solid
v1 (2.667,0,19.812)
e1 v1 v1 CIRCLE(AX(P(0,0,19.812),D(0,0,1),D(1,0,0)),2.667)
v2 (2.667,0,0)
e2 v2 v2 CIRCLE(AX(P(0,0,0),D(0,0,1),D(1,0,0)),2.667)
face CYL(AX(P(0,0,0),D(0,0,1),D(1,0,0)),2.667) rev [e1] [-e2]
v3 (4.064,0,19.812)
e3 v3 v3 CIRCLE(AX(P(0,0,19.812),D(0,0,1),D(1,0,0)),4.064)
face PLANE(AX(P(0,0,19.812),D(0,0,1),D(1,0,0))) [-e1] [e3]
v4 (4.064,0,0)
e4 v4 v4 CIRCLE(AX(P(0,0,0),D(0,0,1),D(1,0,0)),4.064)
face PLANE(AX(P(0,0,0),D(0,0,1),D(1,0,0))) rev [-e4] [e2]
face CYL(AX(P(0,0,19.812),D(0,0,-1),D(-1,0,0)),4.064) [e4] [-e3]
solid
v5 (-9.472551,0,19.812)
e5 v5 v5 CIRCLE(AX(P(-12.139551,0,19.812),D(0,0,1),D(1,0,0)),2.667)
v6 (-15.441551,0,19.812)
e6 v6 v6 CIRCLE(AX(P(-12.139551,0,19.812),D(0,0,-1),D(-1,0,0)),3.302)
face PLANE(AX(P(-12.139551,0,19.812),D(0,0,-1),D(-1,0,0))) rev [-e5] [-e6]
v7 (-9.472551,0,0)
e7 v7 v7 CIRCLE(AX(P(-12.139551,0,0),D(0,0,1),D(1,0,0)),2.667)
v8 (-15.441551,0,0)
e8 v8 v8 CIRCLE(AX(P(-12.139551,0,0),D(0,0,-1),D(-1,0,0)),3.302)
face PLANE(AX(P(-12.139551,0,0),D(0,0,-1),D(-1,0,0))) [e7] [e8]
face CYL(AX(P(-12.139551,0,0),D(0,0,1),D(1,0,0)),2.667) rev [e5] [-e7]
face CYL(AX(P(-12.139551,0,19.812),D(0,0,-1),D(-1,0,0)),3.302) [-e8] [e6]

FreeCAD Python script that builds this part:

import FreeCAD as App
import Part
import Sketcher
Q = App.Units.Quantity

doc = App.newDocument("Part")
params = doc.addObject("Spreadsheet::Sheet", "Params")
for row, (alias, value) in enumerate([
    ("sketch1_diameter", "0.32 in"),
    ("pad1_length", "0.78 in"),
    ("sketch2_diameter", "0.21 in"),
    ("pocket1_length", "0.78 in"),
    ("sketch3_diameter", "0.26 in"),
    ("pad2_length", "0.78 in"),
    ("sketch4_diameter", "0.21 in"),
    ("pocket2_length", "0.78 in"),
], start=1):
    params.set(f"A{row}", alias)
    params.set(f"B{row}", "=" + value)
    params.setAlias(f"B{row}", alias)

body = doc.addObject("PartDesign::Body", "Body")

# Sketch on XY plane
sketch1 = body.newObject("Sketcher::SketchObject", "Sketch")
sketch1.AttachmentSupport = (doc.getObject("XY_Plane"), [""])
sketch1.MapMode = "FlatFace"
sketch1.addGeometry(Part.Circle(App.Vector(0, 0, 0), App.Vector(0, 0, 1), 4.1), False)
sketch1.addConstraint([
    Sketcher.Constraint("Coincident", 0, 3, -1, 1),
    Sketcher.Constraint("Diameter", 0, Q("0.32 in")),
])
sketch1.setExpression("Constraints[1]", "Params.sketch1_diameter")
pad1 = body.newObject("PartDesign::Pad", "Pad")
pad1.Profile = sketch1
pad1.setExpression("Length", "Params.pad1_length")

# Sketch on XY plane
sketch2 = body.newObject("Sketcher::SketchObject", "Sketch001")
sketch2.AttachmentSupport = (doc.getObject("XY_Plane"), [""])
sketch2.MapMode = "FlatFace"
sketch2.AttachmentOffset = App.Placement(App.Vector(0, 0, 0.78 * 25.4), App.Rotation())
sketch2.addGeometry(Part.Circle(App.Vector(0, 0, 0), App.Vector(0, 0, 1), 2.7), False)
sketch2.addConstraint([
    Sketcher.Constraint("Coincident", 0, 3, -1, 1),
    Sketcher.Constraint("Diameter", 0, Q("0.21 in")),
])
sketch2.setExpression("Constraints[1]", "Params.sketch2_diameter")
pocket1 = body.newObject("PartDesign::Pocket", "Pocket")
pocket1.Profile = sketch2
pocket1.setExpression("Length", "Params.pocket1_length")
body2 = doc.addObject("PartDesign::Body", "Body001")

# Sketch on XY plane
sketch3 = body2.newObject("Sketcher::SketchObject", "Sketch002")
sketch3.AttachmentSupport = (doc.getObject("XY_Plane001"), [""])
sketch3.MapMode = "FlatFace"
sketch3.addGeometry(Part.Circle(App.Vector(-12.1, 0, 0), App.Vector(0, 0, 1), 3.3), False)
sketch3.addConstraint([
    Sketcher.Constraint("PointOnObject", 0, 3, -1),
    Sketcher.Constraint("Diameter", 0, Q("0.26 in")),
    Sketcher.Constraint("DistanceX", 0, 3, -1, 1, Q("12.139551 mm")),
])
sketch3.setExpression("Constraints[1]", "Params.sketch3_diameter")
pad2 = body2.newObject("PartDesign::Pad", "Pad001")
pad2.Profile = sketch3
pad2.setExpression("Length", "Params.pad2_length")

# Sketch on XY plane
sketch4 = body2.newObject("Sketcher::SketchObject", "Sketch003")
sketch4.AttachmentSupport = (doc.getObject("XY_Plane001"), [""])
sketch4.MapMode = "FlatFace"
sketch4.AttachmentOffset = App.Placement(App.Vector(0, 0, 0.78 * 25.4), App.Rotation())
sketch4.addGeometry(Part.Circle(App.Vector(-12.1, 0, 0), App.Vector(0, 0, 1), 2.7), False)
sketch4.addConstraint([
    Sketcher.Constraint("PointOnObject", 0, 3, -1),
    Sketcher.Constraint("Diameter", 0, Q("0.21 in")),
    Sketcher.Constraint("DistanceX", 0, 3, -1, 1, Q("12.139551 mm")),
])
sketch4.setExpression("Constraints[1]", "Params.sketch4_diameter")
pocket2 = body2.newObject("PartDesign::Pocket", "Pocket001")
pocket2.Profile = sketch4
pocket2.setExpression("Length", "Params.pocket2_length")

doc.recompute()
